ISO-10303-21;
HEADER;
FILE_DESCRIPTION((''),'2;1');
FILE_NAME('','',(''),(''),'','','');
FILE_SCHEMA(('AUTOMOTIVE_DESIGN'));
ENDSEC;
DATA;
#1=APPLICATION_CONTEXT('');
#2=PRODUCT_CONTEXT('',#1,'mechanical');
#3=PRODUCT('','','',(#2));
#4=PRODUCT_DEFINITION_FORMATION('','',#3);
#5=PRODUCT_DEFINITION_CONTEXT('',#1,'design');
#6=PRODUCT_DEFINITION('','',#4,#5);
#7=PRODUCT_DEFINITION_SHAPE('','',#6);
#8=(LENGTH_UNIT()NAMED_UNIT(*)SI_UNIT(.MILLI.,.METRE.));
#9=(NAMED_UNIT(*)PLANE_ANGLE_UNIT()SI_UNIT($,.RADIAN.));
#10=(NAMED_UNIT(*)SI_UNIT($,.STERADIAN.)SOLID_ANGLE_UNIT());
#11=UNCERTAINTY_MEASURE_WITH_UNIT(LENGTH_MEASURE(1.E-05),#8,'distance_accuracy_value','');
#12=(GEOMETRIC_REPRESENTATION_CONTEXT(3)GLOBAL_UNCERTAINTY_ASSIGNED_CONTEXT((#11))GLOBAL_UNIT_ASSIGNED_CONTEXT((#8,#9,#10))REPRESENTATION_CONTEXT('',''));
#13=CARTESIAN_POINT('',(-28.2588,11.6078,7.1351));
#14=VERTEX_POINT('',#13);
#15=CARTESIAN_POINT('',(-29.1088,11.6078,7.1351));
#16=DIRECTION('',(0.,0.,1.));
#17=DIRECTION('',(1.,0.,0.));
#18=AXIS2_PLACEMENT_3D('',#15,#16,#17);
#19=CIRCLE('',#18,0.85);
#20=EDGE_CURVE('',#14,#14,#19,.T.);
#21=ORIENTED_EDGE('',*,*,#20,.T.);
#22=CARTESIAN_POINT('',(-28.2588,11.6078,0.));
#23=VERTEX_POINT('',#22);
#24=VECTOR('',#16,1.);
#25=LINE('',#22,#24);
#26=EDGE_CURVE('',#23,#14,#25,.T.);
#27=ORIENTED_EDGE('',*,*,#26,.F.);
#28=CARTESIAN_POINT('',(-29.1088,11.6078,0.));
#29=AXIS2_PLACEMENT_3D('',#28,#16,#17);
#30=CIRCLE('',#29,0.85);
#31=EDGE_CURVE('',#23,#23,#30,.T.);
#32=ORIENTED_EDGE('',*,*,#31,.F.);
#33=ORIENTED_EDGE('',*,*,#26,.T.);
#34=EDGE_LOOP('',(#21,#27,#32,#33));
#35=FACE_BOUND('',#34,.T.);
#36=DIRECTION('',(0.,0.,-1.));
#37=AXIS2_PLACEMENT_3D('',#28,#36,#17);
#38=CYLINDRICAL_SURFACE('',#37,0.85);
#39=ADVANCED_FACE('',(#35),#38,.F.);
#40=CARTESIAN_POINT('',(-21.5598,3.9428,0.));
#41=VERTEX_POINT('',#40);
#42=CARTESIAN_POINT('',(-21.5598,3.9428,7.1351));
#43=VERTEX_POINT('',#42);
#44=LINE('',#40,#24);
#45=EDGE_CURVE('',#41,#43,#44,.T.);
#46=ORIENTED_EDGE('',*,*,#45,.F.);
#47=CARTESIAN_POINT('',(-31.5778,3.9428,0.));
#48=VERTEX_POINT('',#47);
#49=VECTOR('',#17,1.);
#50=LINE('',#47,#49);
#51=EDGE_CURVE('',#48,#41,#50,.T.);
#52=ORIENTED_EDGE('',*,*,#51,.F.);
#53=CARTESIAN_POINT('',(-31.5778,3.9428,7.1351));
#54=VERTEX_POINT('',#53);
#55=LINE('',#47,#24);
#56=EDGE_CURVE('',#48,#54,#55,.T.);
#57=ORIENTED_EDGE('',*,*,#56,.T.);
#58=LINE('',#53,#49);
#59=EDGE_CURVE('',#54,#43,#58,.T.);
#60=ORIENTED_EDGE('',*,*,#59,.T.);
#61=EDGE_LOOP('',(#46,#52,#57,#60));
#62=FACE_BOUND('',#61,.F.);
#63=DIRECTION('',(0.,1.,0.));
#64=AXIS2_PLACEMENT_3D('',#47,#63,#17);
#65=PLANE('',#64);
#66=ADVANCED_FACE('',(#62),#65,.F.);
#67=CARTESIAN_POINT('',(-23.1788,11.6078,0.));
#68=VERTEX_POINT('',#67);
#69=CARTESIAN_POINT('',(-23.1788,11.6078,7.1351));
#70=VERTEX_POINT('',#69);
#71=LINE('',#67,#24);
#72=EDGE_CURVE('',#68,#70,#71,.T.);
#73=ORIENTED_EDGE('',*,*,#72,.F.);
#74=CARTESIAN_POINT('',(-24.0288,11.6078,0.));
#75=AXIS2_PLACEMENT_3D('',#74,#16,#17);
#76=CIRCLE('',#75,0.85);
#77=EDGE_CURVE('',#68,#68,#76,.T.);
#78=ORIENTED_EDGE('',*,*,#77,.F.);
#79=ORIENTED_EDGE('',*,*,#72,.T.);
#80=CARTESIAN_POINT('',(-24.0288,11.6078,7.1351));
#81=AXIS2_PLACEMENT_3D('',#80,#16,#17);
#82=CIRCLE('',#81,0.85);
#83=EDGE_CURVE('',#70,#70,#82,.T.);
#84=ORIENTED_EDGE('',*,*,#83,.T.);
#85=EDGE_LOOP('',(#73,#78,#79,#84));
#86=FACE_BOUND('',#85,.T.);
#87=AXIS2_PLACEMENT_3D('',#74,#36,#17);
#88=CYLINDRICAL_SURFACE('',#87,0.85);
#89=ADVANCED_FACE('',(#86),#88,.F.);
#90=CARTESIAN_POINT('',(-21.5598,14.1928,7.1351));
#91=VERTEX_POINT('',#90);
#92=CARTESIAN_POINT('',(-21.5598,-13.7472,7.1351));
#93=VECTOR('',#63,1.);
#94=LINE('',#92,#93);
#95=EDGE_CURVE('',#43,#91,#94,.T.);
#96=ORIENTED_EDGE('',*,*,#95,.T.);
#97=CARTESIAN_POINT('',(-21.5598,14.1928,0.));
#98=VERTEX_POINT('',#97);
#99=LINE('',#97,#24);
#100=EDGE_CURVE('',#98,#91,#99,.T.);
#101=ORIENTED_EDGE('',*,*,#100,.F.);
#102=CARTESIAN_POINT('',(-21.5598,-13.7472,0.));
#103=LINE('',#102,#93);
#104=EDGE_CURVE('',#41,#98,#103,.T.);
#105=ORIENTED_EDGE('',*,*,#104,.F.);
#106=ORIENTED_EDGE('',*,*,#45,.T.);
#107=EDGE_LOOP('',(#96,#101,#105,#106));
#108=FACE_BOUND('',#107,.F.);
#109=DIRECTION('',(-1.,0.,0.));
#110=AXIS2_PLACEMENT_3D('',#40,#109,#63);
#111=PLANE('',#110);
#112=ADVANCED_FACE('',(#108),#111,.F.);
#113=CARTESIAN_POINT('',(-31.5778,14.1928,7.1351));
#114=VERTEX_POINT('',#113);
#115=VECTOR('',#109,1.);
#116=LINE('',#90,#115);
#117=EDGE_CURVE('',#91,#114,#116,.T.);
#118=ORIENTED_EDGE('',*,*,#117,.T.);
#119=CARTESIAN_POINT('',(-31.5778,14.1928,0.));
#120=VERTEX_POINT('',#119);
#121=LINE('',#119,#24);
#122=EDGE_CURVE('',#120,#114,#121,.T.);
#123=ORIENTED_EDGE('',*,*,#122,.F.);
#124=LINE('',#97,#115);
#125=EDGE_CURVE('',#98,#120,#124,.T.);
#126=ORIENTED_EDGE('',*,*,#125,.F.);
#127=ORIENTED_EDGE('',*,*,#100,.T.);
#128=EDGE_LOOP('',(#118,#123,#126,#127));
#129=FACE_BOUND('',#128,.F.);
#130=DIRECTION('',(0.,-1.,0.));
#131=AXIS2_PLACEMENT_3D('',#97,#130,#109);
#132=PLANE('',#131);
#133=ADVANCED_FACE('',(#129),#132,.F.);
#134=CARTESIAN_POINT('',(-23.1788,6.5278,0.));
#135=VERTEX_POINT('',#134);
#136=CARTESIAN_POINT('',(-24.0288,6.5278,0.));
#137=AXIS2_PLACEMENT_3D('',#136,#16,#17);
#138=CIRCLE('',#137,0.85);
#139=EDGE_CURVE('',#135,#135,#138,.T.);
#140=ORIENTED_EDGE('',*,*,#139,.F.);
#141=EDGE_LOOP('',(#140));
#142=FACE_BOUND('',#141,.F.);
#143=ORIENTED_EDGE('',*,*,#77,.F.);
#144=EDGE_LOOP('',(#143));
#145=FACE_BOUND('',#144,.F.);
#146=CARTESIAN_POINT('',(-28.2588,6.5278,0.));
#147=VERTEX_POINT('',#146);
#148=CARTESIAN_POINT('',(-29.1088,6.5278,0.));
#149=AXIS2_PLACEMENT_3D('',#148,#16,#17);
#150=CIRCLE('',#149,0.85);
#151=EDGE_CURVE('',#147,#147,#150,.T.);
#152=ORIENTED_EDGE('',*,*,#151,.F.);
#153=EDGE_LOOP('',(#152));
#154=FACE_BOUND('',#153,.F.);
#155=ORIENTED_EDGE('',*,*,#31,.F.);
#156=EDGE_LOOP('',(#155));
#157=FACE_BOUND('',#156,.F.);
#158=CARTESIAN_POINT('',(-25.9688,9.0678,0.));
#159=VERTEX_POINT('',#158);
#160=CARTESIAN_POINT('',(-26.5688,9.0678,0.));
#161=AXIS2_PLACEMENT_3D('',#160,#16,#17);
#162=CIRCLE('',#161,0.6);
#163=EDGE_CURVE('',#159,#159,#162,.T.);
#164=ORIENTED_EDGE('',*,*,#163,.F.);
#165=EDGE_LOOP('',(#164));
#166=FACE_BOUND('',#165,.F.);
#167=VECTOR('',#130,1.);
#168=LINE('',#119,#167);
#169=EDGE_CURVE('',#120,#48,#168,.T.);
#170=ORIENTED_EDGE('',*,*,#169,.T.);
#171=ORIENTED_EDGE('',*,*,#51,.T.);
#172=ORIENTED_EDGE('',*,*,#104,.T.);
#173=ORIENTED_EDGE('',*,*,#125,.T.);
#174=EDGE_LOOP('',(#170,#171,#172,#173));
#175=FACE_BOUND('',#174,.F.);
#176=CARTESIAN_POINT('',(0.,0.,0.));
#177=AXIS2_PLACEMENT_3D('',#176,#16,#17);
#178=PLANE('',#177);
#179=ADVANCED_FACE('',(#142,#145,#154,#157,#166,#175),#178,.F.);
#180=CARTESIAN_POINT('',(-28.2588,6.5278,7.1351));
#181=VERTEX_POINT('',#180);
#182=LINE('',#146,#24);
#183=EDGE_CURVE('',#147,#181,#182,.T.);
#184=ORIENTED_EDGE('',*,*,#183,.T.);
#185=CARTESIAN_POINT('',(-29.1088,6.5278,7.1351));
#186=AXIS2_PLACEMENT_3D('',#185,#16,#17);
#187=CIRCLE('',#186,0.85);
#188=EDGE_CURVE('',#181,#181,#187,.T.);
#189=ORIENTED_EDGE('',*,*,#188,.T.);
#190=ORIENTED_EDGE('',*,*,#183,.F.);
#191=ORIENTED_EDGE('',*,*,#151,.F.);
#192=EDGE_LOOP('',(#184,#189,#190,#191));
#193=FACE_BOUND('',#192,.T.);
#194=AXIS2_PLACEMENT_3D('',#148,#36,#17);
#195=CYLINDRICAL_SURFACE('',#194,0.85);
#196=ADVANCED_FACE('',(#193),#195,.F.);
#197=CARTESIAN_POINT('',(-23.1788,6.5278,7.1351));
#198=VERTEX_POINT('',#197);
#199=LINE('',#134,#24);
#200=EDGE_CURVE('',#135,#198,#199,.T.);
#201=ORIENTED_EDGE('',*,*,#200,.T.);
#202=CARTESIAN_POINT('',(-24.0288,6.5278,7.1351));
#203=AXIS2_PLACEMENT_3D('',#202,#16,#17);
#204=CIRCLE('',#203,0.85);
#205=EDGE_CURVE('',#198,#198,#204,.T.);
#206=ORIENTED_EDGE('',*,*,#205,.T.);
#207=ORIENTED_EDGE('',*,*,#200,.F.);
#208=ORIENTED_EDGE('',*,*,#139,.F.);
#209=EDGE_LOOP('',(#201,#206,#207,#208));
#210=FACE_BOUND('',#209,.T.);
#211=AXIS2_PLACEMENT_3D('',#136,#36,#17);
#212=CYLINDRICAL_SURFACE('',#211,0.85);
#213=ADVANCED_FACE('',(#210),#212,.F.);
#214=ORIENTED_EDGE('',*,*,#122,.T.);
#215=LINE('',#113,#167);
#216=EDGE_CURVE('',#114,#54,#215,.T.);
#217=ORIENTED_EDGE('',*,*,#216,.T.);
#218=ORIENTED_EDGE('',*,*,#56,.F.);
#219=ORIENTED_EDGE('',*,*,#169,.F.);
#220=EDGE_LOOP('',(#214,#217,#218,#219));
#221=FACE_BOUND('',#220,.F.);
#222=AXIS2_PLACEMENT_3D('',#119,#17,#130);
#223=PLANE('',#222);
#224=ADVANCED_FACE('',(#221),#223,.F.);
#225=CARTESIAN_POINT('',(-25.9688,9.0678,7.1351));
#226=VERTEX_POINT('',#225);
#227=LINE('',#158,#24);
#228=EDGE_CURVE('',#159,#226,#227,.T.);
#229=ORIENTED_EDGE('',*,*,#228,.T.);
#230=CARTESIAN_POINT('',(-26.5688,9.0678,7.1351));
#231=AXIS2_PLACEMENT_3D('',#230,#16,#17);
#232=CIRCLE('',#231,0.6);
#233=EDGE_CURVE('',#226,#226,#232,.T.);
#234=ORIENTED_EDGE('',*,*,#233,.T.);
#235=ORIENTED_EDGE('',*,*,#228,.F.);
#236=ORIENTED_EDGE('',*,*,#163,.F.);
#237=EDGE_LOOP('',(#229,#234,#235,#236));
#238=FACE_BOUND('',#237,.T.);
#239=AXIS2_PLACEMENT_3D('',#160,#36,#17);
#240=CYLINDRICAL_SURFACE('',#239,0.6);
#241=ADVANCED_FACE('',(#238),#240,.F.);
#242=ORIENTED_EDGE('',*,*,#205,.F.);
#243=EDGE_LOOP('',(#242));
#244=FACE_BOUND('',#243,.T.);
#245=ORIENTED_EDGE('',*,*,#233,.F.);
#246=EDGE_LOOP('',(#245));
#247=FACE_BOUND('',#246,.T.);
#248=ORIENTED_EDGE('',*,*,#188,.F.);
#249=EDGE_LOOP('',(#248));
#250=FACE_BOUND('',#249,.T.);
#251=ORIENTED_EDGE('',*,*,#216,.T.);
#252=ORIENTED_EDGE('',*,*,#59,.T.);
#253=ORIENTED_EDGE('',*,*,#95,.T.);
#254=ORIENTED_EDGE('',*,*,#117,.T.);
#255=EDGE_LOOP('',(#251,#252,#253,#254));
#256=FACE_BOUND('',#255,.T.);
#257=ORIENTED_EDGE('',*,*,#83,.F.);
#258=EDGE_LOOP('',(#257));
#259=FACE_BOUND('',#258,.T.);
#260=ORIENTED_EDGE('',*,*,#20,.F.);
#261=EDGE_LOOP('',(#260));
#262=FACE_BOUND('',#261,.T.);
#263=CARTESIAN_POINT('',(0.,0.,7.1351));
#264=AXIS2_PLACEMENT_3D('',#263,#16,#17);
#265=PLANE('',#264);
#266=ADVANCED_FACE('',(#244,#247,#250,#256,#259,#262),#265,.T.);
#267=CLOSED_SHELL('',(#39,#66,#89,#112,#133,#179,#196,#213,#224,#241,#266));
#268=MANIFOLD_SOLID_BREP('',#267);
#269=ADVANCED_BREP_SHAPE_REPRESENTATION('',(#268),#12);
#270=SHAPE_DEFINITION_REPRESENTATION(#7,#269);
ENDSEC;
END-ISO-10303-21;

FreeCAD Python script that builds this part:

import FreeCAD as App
import Part
import Sketcher
from FreeCAD import Vector

doc = App.newDocument("Part")
body = doc.addObject("PartDesign::Body", "Body")

# Sketch on XY plane
sketch1 = body.newObject("Sketcher::SketchObject", "Sketch")
sketch1.AttachmentSupport = (doc.getObject("XY_Plane"), [""])
sketch1.MapMode = "FlatFace"
sketch1.addGeometry([
    Part.LineSegment(Vector(-31.6, 3.9, 0), Vector(-21.6, 3.9, 0)),  # 0
    Part.LineSegment(Vector(-21.6, 3.9, 0), Vector(-21.6, 14.2, 0)),  # 1
    Part.LineSegment(Vector(-21.6, 14.2, 0), Vector(-31.6, 14.2, 0)),  # 2
    Part.LineSegment(Vector(-31.6, 14.2, 0), Vector(-31.6, 3.9, 0)),  # 3
    Part.Circle(Vector(-29.1, 6.5, 0), Vector(0, 0, 1), 0.8),  # 4
    Part.Circle(Vector(-24, 6.5, 0), Vector(0, 0, 1), 0.8),  # 5
    Part.Circle(Vector(-29.1, 11.6, 0), Vector(0, 0, 1), 0.8),  # 6
    Part.Circle(Vector(-26.6, 9.1, 0), Vector(0, 0, 1), 0.6),  # 7
    Part.Circle(Vector(-24, 11.6, 0), Vector(0, 0, 1), 0.8),  # 8
], False)
sketch1.addConstraint([
    Sketcher.Constraint("Coincident", 0, 2, 1, 1),
    Sketcher.Constraint("Coincident", 1, 2, 2, 1),
    Sketcher.Constraint("Coincident", 2, 2, 3, 1),
    Sketcher.Constraint("Coincident", 3, 2, 0, 1),
    Sketcher.Constraint("Horizontal", 0),
    Sketcher.Constraint("Vertical", 1),
    Sketcher.Constraint("Horizontal", 2),
    Sketcher.Constraint("Vertical", 3),
    Sketcher.Constraint("Equal", 4, 5),
    Sketcher.Constraint("Equal", 5, 6),
    Sketcher.Constraint("Equal", 6, 8),
    Sketcher.Constraint("Horizontal", 4, 3, 5, 3),
    Sketcher.Constraint("Horizontal", 6, 3, 8, 3),
    Sketcher.Constraint("Vertical", 4, 3, 6, 3),
    Sketcher.Constraint("Vertical", 5, 3, 8, 3),
    Sketcher.Constraint("Diameter", 4, 1.7),
    Sketcher.Constraint("Diameter", 7, 1.2),
    Sketcher.Constraint("DistanceY", 1, 1, 1, 2, 10.25),
    Sketcher.Constraint("DistanceX", 0, 1, 0, 2, 10.018),
    Sketcher.Constraint("DistanceX", 4, 3, 5, 3, 5.08),
    Sketcher.Constraint("DistanceY", 4, 3, 6, 3, 5.08),
    Sketcher.Constraint("DistanceX", 6, 3, 7, 3, 2.54),
    Sketcher.Constraint("DistanceY", 7, 3, 6, 3, 2.54),
    Sketcher.Constraint("DistanceX", 5, 3, 0, 2, 2.469),
    Sketcher.Constraint("DistanceY", 0, 2, 5, 3, 2.585),
    Sketcher.Constraint("DistanceX", 4, 3, -1, 1, 29.1088),
    Sketcher.Constraint("DistanceY", -1, 1, 4, 3, 6.5278),
])
pad1 = body.newObject("PartDesign::Pad", "Pad")
pad1.Profile = sketch1
pad1.Length = 7.1351

doc.recompute()
